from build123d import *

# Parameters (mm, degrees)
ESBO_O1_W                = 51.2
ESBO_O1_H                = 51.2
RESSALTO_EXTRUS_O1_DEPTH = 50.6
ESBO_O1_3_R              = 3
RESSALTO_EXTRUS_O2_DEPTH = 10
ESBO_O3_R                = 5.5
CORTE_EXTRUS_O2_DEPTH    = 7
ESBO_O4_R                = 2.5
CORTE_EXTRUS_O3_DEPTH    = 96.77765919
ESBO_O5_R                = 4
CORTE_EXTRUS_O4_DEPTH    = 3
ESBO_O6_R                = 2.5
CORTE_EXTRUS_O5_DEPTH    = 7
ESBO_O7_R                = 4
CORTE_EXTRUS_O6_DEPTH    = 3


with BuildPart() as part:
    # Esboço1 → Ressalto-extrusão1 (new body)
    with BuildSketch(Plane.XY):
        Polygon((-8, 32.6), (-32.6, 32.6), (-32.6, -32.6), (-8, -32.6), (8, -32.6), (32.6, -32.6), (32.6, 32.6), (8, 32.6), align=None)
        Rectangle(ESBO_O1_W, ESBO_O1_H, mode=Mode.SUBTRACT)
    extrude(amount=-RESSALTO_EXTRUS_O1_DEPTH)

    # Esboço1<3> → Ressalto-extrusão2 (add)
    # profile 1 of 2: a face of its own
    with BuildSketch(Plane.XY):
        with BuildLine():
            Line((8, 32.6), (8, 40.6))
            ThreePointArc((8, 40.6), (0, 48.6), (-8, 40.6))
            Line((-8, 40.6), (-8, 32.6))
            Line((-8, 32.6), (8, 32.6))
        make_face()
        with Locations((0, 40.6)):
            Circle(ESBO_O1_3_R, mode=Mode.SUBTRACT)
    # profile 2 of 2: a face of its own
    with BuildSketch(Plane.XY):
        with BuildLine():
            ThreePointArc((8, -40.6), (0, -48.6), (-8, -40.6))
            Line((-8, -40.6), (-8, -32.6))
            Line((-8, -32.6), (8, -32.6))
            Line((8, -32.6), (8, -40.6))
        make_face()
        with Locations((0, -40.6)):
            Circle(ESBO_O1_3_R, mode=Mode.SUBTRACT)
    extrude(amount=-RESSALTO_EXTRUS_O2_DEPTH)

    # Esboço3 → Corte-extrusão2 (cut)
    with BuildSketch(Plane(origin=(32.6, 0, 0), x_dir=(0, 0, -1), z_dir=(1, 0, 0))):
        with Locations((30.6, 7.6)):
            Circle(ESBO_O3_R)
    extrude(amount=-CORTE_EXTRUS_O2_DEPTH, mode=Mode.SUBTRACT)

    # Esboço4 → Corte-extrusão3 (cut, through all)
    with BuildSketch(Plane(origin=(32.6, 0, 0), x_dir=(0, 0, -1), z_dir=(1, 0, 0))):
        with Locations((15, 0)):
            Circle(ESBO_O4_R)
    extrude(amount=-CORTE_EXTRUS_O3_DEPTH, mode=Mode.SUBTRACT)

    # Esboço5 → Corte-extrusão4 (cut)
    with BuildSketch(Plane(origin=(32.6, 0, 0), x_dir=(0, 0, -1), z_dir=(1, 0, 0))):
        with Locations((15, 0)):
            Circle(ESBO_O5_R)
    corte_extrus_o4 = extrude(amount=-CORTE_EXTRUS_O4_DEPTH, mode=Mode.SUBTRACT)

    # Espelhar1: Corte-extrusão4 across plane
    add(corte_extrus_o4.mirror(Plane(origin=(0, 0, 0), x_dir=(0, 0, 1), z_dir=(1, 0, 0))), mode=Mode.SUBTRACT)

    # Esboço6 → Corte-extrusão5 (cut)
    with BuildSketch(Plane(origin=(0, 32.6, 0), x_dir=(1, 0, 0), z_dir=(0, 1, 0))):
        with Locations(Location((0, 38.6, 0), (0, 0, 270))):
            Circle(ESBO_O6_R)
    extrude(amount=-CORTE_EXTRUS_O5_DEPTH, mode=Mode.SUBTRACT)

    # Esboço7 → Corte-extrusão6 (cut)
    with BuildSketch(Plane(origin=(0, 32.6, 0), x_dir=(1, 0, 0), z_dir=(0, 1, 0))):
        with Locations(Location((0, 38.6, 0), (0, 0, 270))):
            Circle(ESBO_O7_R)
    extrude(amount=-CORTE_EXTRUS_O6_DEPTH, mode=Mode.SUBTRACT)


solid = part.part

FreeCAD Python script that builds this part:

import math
import FreeCAD as App
import Part
import Sketcher

V = App.Vector

doc = App.newDocument("Part")
params = doc.addObject("Spreadsheet::Sheet", "Params")
for row, (alias, value) in enumerate([
    ("sketch1_width", "65.2 mm"),
    ("sketch1_width2", "51.2 mm"),
    ("pad1_length", "50.6 mm"),
    ("sketch2_diameter", "6 mm"),
    ("sketch2_radius", "8 mm"),
    ("sketch2_height", "8 mm"),
    ("pad2_length", "10 mm"),
    ("sketch3_diameter", "11 mm"),
    ("pocket1_length", "7 mm"),
    ("sketch4_diameter", "5 mm"),
    ("sketch5_diameter", "8 mm"),
    ("pocket3_length", "3 mm"),
    ("sketch6_diameter", "5 mm"),
    ("pocket4_length", "7 mm"),
    ("sketch7_diameter", "8 mm"),
    ("pocket5_length", "3 mm"),
], start=1):
    params.set(f"A{row}", alias)
    params.set(f"B{row}", "=" + value)
    params.setAlias(f"B{row}", alias)

body = doc.addObject("PartDesign::Body", "Body")

# Sketch on XY plane
sketch1 = body.newObject("Sketcher::SketchObject", "Sketch")
sketch1.AttachmentSupport = (doc.getObject("XY_Plane"), [""])
sketch1.MapMode = "FlatFace"
sketch1.addGeometry([
    Part.LineSegment(V(-32.6, 32.6, 0), V(-32.6, -32.6, 0)),  # 0
    Part.LineSegment(V(-32.6, -32.6, 0), V(32.6, -32.6, 0)),  # 1
    Part.LineSegment(V(32.6, -32.6, 0), V(32.6, 32.6, 0)),  # 2
    Part.LineSegment(V(32.6, 32.6, 0), V(-32.6, 32.6, 0)),  # 3
    Part.LineSegment(V(25.6, -25.6, 0), V(-25.6, -25.6, 0)),  # 4
    Part.LineSegment(V(-25.6, -25.6, 0), V(-25.6, 25.6, 0)),  # 5
    Part.LineSegment(V(-25.6, 25.6, 0), V(25.6, 25.6, 0)),  # 6
    Part.LineSegment(V(25.6, 25.6, 0), V(25.6, -25.6, 0)),  # 7
], False)
sketch1.addConstraint([
    Sketcher.Constraint("Coincident", 0, 2, 1, 1),
    Sketcher.Constraint("Coincident", 1, 2, 2, 1),
    Sketcher.Constraint("Coincident", 2, 2, 3, 1),
    Sketcher.Constraint("Coincident", 3, 2, 0, 1),
    Sketcher.Constraint("Coincident", 4, 2, 5, 1),
    Sketcher.Constraint("Coincident", 5, 2, 6, 1),
    Sketcher.Constraint("Coincident", 6, 2, 7, 1),
    Sketcher.Constraint("Coincident", 7, 2, 4, 1),
    Sketcher.Constraint("Vertical", 0),
    Sketcher.Constraint("Horizontal", 1),
    Sketcher.Constraint("Vertical", 2),
    Sketcher.Constraint("Horizontal", 3),
    Sketcher.Constraint("Horizontal", 4),
    Sketcher.Constraint("Vertical", 5),
    Sketcher.Constraint("Horizontal", 6),
    Sketcher.Constraint("Vertical", 7),
    Sketcher.Constraint("Symmetric", 0, 2, 2, 2, -1, 1),
    Sketcher.Constraint("Symmetric", 4, 2, 6, 2, -1, 1),
    Sketcher.Constraint("Equal", 3, 0),
    Sketcher.Constraint("Equal", 6, 5),
    Sketcher.Constraint("DistanceX", 1, 1, 1, 2, 65.2),
    Sketcher.Constraint("DistanceX", 4, 2, 4, 1, 51.2),
])
sketch1.setExpression("Constraints[20]", "Params.sketch1_width")
sketch1.setExpression("Constraints[21]", "Params.sketch1_width2")
pad1 = body.newObject("PartDesign::Pad", "Pad")
pad1.Profile = sketch1
pad1.setExpression("Length", "Params.pad1_length")
pad1.Reversed = True

# Sketch on XY plane
sketch2 = body.newObject("Sketcher::SketchObject", "Sketch001")
sketch2.AttachmentSupport = (doc.getObject("XY_Plane"), [""])
sketch2.MapMode = "FlatFace"
sketch2.addGeometry([
    Part.LineSegment(V(8, 32.6, 0), V(8, 40.6, 0)),  # 0
    Part.ArcOfCircle(Part.Circle(V(0, 40.6, 0), V(0, 0, 1), 8), math.radians(0), math.radians(180)),  # 1
    Part.LineSegment(V(-8, 40.6, 0), V(-8, 32.6, 0)),  # 2
    Part.LineSegment(V(-8, 32.6, 0), V(8, 32.6, 0)),  # 3
    Part.Circle(V(0, 40.6, 0), V(0, 0, 1), 3),  # 4
    Part.ArcOfCircle(Part.Circle(V(0, -40.6, 0), V(0, 0, 1), 8), math.radians(180), math.radians(360)),  # 5
    Part.LineSegment(V(8, -40.6, 0), V(8, -32.6, 0)),  # 6
    Part.LineSegment(V(8, -32.6, 0), V(-8, -32.6, 0)),  # 7
    Part.LineSegment(V(-8, -32.6, 0), V(-8, -40.6, 0)),  # 8
    Part.Circle(V(0, -40.6, 0), V(0, 0, 1), 3),  # 9
], False)
sketch2.addConstraint([
    Sketcher.Constraint("Tangent", 0, 2, 1, 1),
    Sketcher.Constraint("Tangent", 1, 2, 2, 1),
    Sketcher.Constraint("Coincident", 2, 2, 3, 1),
    Sketcher.Constraint("Coincident", 3, 2, 0, 1),
    Sketcher.Constraint("Tangent", 5, 2, 6, 1),
    Sketcher.Constraint("Coincident", 6, 2, 7, 1),
    Sketcher.Constraint("Coincident", 7, 2, 8, 1),
    Sketcher.Constraint("Tangent", 8, 2, 5, 1),
    Sketcher.Constraint("Vertical", 0),
    Sketcher.Constraint("Vertical", 2),
    Sketcher.Constraint("Horizontal", 3),
    Sketcher.Constraint("Vertical", 6),
    Sketcher.Constraint("Horizontal", 7),
    Sketcher.Constraint("Vertical", 8),
    Sketcher.Constraint("Coincident", 4, 3, 1, 3),
    Sketcher.Constraint("Coincident", 9, 3, 5, 3),
    Sketcher.Constraint("Equal", 1, 5),
    Sketcher.Constraint("Equal", 4, 9),
    Sketcher.Constraint("Symmetric", 1, 3, 5, 3, -1, 1),
    Sketcher.Constraint("Symmetric", 3, 2, 6, 2, -1),
    Sketcher.Constraint("Diameter", 4, 6.0),
    Sketcher.Constraint("Radius", 1, 8.0),
    Sketcher.Constraint("DistanceY", 0, 1, 0, 2, 8.0),
    Sketcher.Constraint("DistanceY", -1, 1, 1, 3, 40.6),
])
sketch2.setExpression("Constraints[20]", "Params.sketch2_diameter")
sketch2.setExpression("Constraints[21]", "Params.sketch2_radius")
sketch2.setExpression("Constraints[22]", "Params.sketch2_height")
pad2 = body.newObject("PartDesign::Pad", "Pad001")
pad2.Profile = sketch2
pad2.setExpression("Length", "Params.pad2_length")
pad2.Reversed = True

# Sketch on YZ plane
sketch3 = body.newObject("Sketcher::SketchObject", "Sketch002")
sketch3.AttachmentSupport = (doc.getObject("YZ_Plane"), [""])
sketch3.MapMode = "FlatFace"
sketch3.AttachmentOffset = App.Placement(V(0, 0, 32.6), App.Rotation())
sketch3.addGeometry(Part.Circle(V(7.6, -30.6, 0), V(0, 0, 1), 5.5), False)
sketch3.addConstraint([
    Sketcher.Constraint("Diameter", 0, 11.0),
    Sketcher.Constraint("DistanceX", -1, 1, 0, 3, 7.6),
    Sketcher.Constraint("DistanceY", 0, 3, -1, 1, 30.6),
])
sketch3.setExpression("Constraints[0]", "Params.sketch3_diameter")
pocket1 = body.newObject("PartDesign::Pocket", "Pocket")
pocket1.Profile = sketch3
pocket1.setExpression("Length", "Params.pocket1_length")

# Sketch on YZ plane
sketch4 = body.newObject("Sketcher::SketchObject", "Sketch003")
sketch4.AttachmentSupport = (doc.getObject("YZ_Plane"), [""])
sketch4.MapMode = "FlatFace"
sketch4.AttachmentOffset = App.Placement(V(0, 0, 32.6), App.Rotation())
sketch4.addGeometry(Part.Circle(V(0, -15, 0), V(0, 0, 1), 2.5), False)
sketch4.addConstraint([
    Sketcher.Constraint("PointOnObject", 0, 3, -2),
    Sketcher.Constraint("Diameter", 0, 5.0),
    Sketcher.Constraint("DistanceY", 0, 3, -1, 1, 15.0),
])
sketch4.setExpression("Constraints[1]", "Params.sketch4_diameter")
pocket2 = body.newObject("PartDesign::Pocket", "Pocket001")
pocket2.Profile = sketch4
pocket2.Type = "ThroughAll"

# Sketch on YZ plane
sketch5 = body.newObject("Sketcher::SketchObject", "Sketch004")
sketch5.AttachmentSupport = (doc.getObject("YZ_Plane"), [""])
sketch5.MapMode = "FlatFace"
sketch5.AttachmentOffset = App.Placement(V(0, 0, 32.6), App.Rotation())
sketch5.addGeometry(Part.Circle(V(0, -15, 0), V(0, 0, 1), 4), False)
sketch5.addConstraint([
    Sketcher.Constraint("PointOnObject", 0, 3, -2),
    Sketcher.Constraint("Diameter", 0, 8.0),
    Sketcher.Constraint("DistanceY", 0, 3, -1, 1, 15.0),
])
sketch5.setExpression("Constraints[1]", "Params.sketch5_diameter")
pocket3 = body.newObject("PartDesign::Pocket", "Pocket002")
pocket3.Profile = sketch5
pocket3.setExpression("Length", "Params.pocket3_length")
doc.recompute()

mirrored = body.newObject("PartDesign::Mirrored", "Mirrored")
mirrored.Originals = [pocket3]
mirrored.MirrorPlane = (doc.getObject("YZ_Plane"), [""])
body.Tip = mirrored

# Sketch on XZ plane
sketch6 = body.newObject("Sketcher::SketchObject", "Sketch005")
sketch6.AttachmentSupport = (doc.getObject("XZ_Plane"), [""])
sketch6.MapMode = "FlatFace"
sketch6.AttachmentOffset = App.Placement(V(0, 0, -32.6), App.Rotation())
sketch6.addGeometry(Part.Circle(V(0, -38.6, 0), V(0, 0, 1), 2.5), False)
sketch6.addConstraint([
    Sketcher.Constraint("PointOnObject", 0, 3, -2),
    Sketcher.Constraint("Diameter", 0, 5.0),
    Sketcher.Constraint("DistanceY", 0, 3, -1, 1, 38.6),
])
sketch6.setExpression("Constraints[1]", "Params.sketch6_diameter")
pocket4 = body.newObject("PartDesign::Pocket", "Pocket003")
pocket4.Profile = sketch6
pocket4.setExpression("Length", "Params.pocket4_length")
pocket4.Reversed = True

# Sketch on XZ plane
sketch7 = body.newObject("Sketcher::SketchObject", "Sketch006")
sketch7.AttachmentSupport = (doc.getObject("XZ_Plane"), [""])
sketch7.MapMode = "FlatFace"
sketch7.AttachmentOffset = App.Placement(V(0, 0, -32.6), App.Rotation())
sketch7.addGeometry(Part.Circle(V(0, -38.6, 0), V(0, 0, 1), 4), False)
sketch7.addConstraint([
    Sketcher.Constraint("PointOnObject", 0, 3, -2),
    Sketcher.Constraint("Diameter", 0, 8.0),
    Sketcher.Constraint("DistanceY", 0, 3, -1, 1, 38.6),
])
sketch7.setExpression("Constraints[1]", "Params.sketch7_diameter")
pocket5 = body.newObject("PartDesign::Pocket", "Pocket004")
pocket5.Profile = sketch7
pocket5.setExpression("Length", "Params.pocket5_length")
pocket5.Reversed = True

doc.recompute()
